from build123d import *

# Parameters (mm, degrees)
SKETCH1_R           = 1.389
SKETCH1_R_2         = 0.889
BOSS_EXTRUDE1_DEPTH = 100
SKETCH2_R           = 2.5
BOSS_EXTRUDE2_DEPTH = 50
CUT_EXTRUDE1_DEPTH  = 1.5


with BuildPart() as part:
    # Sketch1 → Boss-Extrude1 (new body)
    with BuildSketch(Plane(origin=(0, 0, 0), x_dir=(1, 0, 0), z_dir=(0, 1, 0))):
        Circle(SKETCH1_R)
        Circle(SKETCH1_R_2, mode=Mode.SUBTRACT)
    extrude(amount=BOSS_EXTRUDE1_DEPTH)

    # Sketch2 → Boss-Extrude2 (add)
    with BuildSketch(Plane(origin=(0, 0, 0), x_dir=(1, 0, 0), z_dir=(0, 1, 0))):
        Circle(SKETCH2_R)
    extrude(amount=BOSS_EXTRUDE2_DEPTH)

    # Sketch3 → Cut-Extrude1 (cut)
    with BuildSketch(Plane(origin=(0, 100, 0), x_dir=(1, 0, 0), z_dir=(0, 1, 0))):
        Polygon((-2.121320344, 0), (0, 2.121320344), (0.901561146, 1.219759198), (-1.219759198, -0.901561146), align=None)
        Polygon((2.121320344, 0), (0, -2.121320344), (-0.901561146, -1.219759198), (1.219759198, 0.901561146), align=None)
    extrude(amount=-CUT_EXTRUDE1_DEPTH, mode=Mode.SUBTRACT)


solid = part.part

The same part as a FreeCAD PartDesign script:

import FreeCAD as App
import Part
import Sketcher
Q = App.Units.Quantity


def add_polygon(sketch, points):
    """Adds a closed chain of lines whose ends are joined by coincident constraints."""
    first, n = sketch.GeometryCount, len(points)
    for a, b in zip(points, points[1:] + points[:1]):
        sketch.addGeometry(Part.LineSegment(App.Vector(*a, 0), App.Vector(*b, 0)), False)
    for i in range(n):
        sketch.addConstraint(Sketcher.Constraint("Coincident", first + i, 2, first + (i + 1) % n, 1))

doc = App.newDocument("Part")
body = doc.addObject("PartDesign::Body", "Body")

# Sketch on XZ plane
sketch1 = body.newObject("Sketcher::SketchObject", "Sketch")
sketch1.AttachmentSupport = (doc.getObject("XZ_Plane"), [""])
sketch1.MapMode = "FlatFace"
sketch1.addGeometry([
    Part.Circle(App.Vector(0, 0, 0), App.Vector(0, 0, 1), 1.4),
    Part.Circle(App.Vector(0, 0, 0), App.Vector(0, 0, 1), 0.9),
], False)
sketch1.addConstraint([
    Sketcher.Constraint("Coincident", 0, 3, -1, 1),
    Sketcher.Constraint("Coincident", 1, 3, -1, 1),
    Sketcher.Constraint("Diameter", 0, 2.778),
    Sketcher.Constraint("Diameter", 1, 1.778),
])
pad1 = body.newObject("PartDesign::Pad", "Pad")
pad1.Profile = sketch1
pad1.Length = 100
pad1.Reversed = True

# Sketch on XZ plane
sketch2 = body.newObject("Sketcher::SketchObject", "Sketch001")
sketch2.AttachmentSupport = (doc.getObject("XZ_Plane"), [""])
sketch2.MapMode = "FlatFace"
sketch2.addGeometry(Part.Circle(App.Vector(0, 0, 0), App.Vector(0, 0, 1), 2.5), False)
sketch2.addConstraint([
    Sketcher.Constraint("Coincident", 0, 3, -1, 1),
    Sketcher.Constraint("Diameter", 0, 5.0),
])
pad2 = body.newObject("PartDesign::Pad", "Pad001")
pad2.Profile = sketch2
pad2.Length = 50
pad2.Reversed = True

# Sketch on XZ plane
sketch3 = body.newObject("Sketcher::SketchObject", "Sketch002")
sketch3.AttachmentSupport = (doc.getObject("XZ_Plane"), [""])
sketch3.MapMode = "FlatFace"
sketch3.AttachmentOffset = App.Placement(App.Vector(0, 0, -100), App.Rotation())
add_polygon(sketch3, [(0, -2.1), (-2.1, 0), (-1.2, 0.9), (0.9, -1.2)])  # lines 0-3
add_polygon(sketch3, [(0, 2.1), (2.1, 0), (1.2, -0.9), (-0.9, 1.2)])  # lines 4-7
sketch3.addConstraint([
    Sketcher.Constraint("Symmetric", 0, 2, 4, 2, -1, 1),
    Sketcher.Constraint("Symmetric", 1, 2, 5, 2, -1, 1),
    Sketcher.Constraint("Symmetric", 2, 2, 6, 2, -1, 1),
    Sketcher.Constraint("Symmetric", 3, 2, 7, 2, -1, 1),
    Sketcher.Constraint("PointOnObject", 0, 2, -1),
    Sketcher.Constraint("PointOnObject", 3, 2, -2),
    Sketcher.Constraint("Perpendicular", 0, 1),
    Sketcher.Constraint("Perpendicular", 1, 2),
    Sketcher.Constraint("Perpendicular", 2, 3),
    Sketcher.Constraint("Angle", 0, Q("135 deg")),
    Sketcher.Constraint("Distance", 0, 3.0),
    Sketcher.Constraint("Distance", 1, 1.275),
])
pocket1 = body.newObject("PartDesign::Pocket", "Pocket")
pocket1.Profile = sketch3
pocket1.Length = 1.5
pocket1.Reversed = True

doc.recompute()
